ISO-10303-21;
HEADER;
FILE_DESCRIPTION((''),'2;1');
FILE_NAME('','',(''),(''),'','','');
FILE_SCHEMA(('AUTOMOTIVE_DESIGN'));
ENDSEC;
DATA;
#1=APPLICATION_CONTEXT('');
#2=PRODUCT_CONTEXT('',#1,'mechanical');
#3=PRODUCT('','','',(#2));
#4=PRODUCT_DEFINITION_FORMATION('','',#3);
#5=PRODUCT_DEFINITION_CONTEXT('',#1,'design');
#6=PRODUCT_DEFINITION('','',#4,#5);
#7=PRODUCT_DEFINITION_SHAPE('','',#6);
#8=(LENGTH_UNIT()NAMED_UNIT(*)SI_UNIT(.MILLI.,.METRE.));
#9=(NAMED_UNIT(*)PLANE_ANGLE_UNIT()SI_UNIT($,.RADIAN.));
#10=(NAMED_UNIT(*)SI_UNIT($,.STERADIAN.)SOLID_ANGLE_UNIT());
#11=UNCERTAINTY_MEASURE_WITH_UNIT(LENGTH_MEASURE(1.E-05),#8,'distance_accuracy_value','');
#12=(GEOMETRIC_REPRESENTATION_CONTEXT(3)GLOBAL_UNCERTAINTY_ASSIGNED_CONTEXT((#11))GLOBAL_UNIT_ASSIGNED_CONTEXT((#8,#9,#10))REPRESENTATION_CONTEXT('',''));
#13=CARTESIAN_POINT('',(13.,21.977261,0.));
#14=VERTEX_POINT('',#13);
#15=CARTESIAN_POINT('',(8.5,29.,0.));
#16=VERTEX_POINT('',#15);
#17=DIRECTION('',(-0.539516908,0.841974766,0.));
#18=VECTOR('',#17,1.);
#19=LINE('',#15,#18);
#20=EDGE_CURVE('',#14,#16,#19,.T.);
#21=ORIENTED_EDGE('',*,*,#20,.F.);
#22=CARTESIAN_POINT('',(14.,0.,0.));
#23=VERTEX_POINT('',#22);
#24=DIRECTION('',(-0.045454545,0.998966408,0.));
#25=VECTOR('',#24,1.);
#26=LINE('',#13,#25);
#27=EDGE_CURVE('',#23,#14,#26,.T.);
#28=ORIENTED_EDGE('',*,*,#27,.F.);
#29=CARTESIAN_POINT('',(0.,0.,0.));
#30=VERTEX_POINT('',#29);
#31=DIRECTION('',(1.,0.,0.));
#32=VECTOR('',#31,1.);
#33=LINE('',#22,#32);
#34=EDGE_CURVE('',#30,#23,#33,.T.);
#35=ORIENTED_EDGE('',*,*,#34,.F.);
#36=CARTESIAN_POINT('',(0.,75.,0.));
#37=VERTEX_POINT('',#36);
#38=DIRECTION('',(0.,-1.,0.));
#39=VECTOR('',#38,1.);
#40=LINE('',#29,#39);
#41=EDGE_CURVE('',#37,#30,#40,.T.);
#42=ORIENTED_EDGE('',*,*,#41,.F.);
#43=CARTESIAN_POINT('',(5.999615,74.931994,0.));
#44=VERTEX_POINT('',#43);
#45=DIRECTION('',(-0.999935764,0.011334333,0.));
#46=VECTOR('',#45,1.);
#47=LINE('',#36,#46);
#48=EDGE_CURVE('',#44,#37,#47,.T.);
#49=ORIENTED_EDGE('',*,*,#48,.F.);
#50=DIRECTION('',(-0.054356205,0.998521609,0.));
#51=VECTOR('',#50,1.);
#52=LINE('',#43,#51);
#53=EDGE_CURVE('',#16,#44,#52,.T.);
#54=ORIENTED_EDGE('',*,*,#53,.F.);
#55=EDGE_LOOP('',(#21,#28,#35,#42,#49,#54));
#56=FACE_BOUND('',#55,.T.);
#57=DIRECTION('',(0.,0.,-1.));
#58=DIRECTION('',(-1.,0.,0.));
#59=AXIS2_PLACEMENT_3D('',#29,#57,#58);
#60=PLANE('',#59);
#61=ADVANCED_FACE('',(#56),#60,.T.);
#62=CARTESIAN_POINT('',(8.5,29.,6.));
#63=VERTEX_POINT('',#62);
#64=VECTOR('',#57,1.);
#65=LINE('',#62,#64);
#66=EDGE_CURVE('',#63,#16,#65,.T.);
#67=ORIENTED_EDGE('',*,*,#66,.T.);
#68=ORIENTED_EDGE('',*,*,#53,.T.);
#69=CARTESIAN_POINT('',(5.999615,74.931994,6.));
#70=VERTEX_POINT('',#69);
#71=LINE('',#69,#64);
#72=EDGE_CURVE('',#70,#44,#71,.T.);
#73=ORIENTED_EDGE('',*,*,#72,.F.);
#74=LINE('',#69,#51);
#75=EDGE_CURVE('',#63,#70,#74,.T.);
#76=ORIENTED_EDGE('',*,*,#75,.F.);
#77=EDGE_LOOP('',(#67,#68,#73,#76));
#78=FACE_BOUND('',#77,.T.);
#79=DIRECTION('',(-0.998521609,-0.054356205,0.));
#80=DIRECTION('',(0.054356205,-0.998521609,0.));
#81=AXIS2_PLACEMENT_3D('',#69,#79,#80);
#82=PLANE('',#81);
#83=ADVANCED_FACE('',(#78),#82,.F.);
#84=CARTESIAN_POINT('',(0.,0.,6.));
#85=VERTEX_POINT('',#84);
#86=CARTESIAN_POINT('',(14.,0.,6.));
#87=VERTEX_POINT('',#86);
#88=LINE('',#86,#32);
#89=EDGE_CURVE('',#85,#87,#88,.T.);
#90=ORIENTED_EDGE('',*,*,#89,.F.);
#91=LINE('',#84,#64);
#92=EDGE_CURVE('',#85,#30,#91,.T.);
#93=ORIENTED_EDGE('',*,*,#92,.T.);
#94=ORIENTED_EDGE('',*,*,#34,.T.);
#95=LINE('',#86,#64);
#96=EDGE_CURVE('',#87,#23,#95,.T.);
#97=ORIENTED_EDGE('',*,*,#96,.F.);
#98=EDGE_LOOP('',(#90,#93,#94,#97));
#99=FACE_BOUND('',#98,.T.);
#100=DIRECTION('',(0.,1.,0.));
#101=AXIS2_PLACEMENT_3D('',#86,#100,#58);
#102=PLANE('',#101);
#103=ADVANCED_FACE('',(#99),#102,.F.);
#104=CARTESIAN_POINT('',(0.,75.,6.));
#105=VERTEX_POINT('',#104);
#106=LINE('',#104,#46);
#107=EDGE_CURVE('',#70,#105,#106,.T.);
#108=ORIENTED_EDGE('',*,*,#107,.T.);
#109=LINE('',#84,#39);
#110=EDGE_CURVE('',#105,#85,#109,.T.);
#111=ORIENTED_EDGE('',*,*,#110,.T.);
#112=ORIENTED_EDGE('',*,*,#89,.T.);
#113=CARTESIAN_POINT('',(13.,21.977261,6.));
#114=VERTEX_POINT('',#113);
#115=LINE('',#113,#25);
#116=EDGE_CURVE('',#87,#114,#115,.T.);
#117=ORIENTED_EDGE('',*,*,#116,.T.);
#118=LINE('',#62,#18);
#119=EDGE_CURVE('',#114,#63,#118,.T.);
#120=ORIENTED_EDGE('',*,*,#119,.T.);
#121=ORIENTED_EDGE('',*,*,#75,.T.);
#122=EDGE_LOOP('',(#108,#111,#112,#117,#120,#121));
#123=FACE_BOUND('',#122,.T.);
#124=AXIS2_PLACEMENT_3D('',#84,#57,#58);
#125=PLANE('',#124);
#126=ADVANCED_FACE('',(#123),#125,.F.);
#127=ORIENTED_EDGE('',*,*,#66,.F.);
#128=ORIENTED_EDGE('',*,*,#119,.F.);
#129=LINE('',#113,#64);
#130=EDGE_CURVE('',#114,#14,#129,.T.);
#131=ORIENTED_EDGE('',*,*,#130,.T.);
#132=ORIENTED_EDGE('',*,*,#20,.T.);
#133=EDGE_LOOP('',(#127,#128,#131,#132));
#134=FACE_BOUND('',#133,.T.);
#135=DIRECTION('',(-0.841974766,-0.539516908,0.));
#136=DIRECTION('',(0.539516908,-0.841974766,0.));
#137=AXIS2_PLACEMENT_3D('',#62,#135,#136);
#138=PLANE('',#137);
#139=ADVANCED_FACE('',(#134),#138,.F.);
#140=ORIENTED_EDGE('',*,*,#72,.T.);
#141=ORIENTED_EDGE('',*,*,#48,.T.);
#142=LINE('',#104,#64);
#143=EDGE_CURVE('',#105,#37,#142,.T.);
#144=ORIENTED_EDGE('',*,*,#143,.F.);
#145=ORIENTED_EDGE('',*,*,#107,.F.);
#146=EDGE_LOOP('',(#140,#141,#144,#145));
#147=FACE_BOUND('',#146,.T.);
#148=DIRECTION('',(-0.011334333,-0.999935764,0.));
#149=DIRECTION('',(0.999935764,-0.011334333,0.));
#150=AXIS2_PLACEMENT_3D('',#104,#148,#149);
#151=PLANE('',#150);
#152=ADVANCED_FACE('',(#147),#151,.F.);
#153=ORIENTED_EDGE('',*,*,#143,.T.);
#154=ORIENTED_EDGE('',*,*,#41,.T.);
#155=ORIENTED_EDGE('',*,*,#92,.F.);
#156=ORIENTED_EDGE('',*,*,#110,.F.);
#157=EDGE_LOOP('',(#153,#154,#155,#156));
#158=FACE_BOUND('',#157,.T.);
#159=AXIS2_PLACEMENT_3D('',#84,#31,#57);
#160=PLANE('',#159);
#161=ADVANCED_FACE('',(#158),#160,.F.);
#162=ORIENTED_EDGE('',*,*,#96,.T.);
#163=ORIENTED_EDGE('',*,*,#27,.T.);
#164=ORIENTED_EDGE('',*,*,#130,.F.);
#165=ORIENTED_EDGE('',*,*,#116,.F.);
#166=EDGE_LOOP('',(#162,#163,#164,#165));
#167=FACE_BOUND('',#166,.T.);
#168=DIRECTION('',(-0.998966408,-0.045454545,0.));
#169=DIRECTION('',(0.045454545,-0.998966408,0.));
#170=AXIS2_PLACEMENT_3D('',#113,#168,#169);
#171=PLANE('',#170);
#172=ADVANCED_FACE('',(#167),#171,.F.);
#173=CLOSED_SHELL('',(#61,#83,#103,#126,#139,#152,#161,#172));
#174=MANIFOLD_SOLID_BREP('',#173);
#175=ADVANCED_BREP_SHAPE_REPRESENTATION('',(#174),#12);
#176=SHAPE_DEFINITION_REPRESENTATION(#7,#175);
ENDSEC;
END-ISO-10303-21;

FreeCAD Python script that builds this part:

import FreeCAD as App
import Part
import Sketcher

V = App.Vector

doc = App.newDocument("Part")
body = doc.addObject("PartDesign::Body", "Body")

# Sketch on XY plane
sketch1 = body.newObject("Sketcher::SketchObject", "Sketch")
sketch1.AttachmentSupport = (doc.getObject("XY_Plane"), [""])
sketch1.MapMode = "FlatFace"
sketch1.addGeometry([
    Part.LineSegment(V(0, 75, 0), V(0, 0, 0)),  # 0
    Part.LineSegment(V(0, 0, 0), V(14, 0, 0)),  # 1
    Part.LineSegment(V(14, 0, 0), V(13, 21.977261, 0)),  # 2
    Part.LineSegment(V(13, 21.977261, 0), V(8.5, 29, 0)),  # 3
    Part.LineSegment(V(8.5, 29, 0), V(5.999615, 74.931994, 0)),  # 4
    Part.LineSegment(V(5.999615, 74.931994, 0), V(0, 75, 0)),  # 5
], False)
sketch1.addConstraint([
    Sketcher.Constraint("Coincident", 0, 2, 1, 1),
    Sketcher.Constraint("Coincident", 1, 2, 2, 1),
    Sketcher.Constraint("Coincident", 2, 2, 3, 1),
    Sketcher.Constraint("Coincident", 3, 2, 4, 1),
    Sketcher.Constraint("Coincident", 4, 2, 5, 1),
    Sketcher.Constraint("Coincident", 5, 2, 0, 1),
    Sketcher.Constraint("Vertical", 0),
    Sketcher.Constraint("Horizontal", 1),
    Sketcher.Constraint("Coincident", 0, 2, -1, 1),
    Sketcher.Constraint("DistanceX", 1, 1, 1, 2, 14.0),
    Sketcher.Constraint("DistanceY", 0, 2, 0, 1, 75.0),
    Sketcher.Constraint("Distance", 2, 22.0),
    Sketcher.Constraint("Distance", 4, 46.0),
    Sketcher.Constraint("Distance", 5, 6.0),
    Sketcher.Constraint("DistanceX", -1, 1, 2, 2, 13.0),
    Sketcher.Constraint("DistanceY", -1, 1, 3, 2, 29.0),
    Sketcher.Constraint("DistanceX", -1, 1, 3, 2, 8.5),
])
pad1 = body.newObject("PartDesign::Pad", "Pad")
pad1.Profile = sketch1
pad1.Length = 6

doc.recompute()
